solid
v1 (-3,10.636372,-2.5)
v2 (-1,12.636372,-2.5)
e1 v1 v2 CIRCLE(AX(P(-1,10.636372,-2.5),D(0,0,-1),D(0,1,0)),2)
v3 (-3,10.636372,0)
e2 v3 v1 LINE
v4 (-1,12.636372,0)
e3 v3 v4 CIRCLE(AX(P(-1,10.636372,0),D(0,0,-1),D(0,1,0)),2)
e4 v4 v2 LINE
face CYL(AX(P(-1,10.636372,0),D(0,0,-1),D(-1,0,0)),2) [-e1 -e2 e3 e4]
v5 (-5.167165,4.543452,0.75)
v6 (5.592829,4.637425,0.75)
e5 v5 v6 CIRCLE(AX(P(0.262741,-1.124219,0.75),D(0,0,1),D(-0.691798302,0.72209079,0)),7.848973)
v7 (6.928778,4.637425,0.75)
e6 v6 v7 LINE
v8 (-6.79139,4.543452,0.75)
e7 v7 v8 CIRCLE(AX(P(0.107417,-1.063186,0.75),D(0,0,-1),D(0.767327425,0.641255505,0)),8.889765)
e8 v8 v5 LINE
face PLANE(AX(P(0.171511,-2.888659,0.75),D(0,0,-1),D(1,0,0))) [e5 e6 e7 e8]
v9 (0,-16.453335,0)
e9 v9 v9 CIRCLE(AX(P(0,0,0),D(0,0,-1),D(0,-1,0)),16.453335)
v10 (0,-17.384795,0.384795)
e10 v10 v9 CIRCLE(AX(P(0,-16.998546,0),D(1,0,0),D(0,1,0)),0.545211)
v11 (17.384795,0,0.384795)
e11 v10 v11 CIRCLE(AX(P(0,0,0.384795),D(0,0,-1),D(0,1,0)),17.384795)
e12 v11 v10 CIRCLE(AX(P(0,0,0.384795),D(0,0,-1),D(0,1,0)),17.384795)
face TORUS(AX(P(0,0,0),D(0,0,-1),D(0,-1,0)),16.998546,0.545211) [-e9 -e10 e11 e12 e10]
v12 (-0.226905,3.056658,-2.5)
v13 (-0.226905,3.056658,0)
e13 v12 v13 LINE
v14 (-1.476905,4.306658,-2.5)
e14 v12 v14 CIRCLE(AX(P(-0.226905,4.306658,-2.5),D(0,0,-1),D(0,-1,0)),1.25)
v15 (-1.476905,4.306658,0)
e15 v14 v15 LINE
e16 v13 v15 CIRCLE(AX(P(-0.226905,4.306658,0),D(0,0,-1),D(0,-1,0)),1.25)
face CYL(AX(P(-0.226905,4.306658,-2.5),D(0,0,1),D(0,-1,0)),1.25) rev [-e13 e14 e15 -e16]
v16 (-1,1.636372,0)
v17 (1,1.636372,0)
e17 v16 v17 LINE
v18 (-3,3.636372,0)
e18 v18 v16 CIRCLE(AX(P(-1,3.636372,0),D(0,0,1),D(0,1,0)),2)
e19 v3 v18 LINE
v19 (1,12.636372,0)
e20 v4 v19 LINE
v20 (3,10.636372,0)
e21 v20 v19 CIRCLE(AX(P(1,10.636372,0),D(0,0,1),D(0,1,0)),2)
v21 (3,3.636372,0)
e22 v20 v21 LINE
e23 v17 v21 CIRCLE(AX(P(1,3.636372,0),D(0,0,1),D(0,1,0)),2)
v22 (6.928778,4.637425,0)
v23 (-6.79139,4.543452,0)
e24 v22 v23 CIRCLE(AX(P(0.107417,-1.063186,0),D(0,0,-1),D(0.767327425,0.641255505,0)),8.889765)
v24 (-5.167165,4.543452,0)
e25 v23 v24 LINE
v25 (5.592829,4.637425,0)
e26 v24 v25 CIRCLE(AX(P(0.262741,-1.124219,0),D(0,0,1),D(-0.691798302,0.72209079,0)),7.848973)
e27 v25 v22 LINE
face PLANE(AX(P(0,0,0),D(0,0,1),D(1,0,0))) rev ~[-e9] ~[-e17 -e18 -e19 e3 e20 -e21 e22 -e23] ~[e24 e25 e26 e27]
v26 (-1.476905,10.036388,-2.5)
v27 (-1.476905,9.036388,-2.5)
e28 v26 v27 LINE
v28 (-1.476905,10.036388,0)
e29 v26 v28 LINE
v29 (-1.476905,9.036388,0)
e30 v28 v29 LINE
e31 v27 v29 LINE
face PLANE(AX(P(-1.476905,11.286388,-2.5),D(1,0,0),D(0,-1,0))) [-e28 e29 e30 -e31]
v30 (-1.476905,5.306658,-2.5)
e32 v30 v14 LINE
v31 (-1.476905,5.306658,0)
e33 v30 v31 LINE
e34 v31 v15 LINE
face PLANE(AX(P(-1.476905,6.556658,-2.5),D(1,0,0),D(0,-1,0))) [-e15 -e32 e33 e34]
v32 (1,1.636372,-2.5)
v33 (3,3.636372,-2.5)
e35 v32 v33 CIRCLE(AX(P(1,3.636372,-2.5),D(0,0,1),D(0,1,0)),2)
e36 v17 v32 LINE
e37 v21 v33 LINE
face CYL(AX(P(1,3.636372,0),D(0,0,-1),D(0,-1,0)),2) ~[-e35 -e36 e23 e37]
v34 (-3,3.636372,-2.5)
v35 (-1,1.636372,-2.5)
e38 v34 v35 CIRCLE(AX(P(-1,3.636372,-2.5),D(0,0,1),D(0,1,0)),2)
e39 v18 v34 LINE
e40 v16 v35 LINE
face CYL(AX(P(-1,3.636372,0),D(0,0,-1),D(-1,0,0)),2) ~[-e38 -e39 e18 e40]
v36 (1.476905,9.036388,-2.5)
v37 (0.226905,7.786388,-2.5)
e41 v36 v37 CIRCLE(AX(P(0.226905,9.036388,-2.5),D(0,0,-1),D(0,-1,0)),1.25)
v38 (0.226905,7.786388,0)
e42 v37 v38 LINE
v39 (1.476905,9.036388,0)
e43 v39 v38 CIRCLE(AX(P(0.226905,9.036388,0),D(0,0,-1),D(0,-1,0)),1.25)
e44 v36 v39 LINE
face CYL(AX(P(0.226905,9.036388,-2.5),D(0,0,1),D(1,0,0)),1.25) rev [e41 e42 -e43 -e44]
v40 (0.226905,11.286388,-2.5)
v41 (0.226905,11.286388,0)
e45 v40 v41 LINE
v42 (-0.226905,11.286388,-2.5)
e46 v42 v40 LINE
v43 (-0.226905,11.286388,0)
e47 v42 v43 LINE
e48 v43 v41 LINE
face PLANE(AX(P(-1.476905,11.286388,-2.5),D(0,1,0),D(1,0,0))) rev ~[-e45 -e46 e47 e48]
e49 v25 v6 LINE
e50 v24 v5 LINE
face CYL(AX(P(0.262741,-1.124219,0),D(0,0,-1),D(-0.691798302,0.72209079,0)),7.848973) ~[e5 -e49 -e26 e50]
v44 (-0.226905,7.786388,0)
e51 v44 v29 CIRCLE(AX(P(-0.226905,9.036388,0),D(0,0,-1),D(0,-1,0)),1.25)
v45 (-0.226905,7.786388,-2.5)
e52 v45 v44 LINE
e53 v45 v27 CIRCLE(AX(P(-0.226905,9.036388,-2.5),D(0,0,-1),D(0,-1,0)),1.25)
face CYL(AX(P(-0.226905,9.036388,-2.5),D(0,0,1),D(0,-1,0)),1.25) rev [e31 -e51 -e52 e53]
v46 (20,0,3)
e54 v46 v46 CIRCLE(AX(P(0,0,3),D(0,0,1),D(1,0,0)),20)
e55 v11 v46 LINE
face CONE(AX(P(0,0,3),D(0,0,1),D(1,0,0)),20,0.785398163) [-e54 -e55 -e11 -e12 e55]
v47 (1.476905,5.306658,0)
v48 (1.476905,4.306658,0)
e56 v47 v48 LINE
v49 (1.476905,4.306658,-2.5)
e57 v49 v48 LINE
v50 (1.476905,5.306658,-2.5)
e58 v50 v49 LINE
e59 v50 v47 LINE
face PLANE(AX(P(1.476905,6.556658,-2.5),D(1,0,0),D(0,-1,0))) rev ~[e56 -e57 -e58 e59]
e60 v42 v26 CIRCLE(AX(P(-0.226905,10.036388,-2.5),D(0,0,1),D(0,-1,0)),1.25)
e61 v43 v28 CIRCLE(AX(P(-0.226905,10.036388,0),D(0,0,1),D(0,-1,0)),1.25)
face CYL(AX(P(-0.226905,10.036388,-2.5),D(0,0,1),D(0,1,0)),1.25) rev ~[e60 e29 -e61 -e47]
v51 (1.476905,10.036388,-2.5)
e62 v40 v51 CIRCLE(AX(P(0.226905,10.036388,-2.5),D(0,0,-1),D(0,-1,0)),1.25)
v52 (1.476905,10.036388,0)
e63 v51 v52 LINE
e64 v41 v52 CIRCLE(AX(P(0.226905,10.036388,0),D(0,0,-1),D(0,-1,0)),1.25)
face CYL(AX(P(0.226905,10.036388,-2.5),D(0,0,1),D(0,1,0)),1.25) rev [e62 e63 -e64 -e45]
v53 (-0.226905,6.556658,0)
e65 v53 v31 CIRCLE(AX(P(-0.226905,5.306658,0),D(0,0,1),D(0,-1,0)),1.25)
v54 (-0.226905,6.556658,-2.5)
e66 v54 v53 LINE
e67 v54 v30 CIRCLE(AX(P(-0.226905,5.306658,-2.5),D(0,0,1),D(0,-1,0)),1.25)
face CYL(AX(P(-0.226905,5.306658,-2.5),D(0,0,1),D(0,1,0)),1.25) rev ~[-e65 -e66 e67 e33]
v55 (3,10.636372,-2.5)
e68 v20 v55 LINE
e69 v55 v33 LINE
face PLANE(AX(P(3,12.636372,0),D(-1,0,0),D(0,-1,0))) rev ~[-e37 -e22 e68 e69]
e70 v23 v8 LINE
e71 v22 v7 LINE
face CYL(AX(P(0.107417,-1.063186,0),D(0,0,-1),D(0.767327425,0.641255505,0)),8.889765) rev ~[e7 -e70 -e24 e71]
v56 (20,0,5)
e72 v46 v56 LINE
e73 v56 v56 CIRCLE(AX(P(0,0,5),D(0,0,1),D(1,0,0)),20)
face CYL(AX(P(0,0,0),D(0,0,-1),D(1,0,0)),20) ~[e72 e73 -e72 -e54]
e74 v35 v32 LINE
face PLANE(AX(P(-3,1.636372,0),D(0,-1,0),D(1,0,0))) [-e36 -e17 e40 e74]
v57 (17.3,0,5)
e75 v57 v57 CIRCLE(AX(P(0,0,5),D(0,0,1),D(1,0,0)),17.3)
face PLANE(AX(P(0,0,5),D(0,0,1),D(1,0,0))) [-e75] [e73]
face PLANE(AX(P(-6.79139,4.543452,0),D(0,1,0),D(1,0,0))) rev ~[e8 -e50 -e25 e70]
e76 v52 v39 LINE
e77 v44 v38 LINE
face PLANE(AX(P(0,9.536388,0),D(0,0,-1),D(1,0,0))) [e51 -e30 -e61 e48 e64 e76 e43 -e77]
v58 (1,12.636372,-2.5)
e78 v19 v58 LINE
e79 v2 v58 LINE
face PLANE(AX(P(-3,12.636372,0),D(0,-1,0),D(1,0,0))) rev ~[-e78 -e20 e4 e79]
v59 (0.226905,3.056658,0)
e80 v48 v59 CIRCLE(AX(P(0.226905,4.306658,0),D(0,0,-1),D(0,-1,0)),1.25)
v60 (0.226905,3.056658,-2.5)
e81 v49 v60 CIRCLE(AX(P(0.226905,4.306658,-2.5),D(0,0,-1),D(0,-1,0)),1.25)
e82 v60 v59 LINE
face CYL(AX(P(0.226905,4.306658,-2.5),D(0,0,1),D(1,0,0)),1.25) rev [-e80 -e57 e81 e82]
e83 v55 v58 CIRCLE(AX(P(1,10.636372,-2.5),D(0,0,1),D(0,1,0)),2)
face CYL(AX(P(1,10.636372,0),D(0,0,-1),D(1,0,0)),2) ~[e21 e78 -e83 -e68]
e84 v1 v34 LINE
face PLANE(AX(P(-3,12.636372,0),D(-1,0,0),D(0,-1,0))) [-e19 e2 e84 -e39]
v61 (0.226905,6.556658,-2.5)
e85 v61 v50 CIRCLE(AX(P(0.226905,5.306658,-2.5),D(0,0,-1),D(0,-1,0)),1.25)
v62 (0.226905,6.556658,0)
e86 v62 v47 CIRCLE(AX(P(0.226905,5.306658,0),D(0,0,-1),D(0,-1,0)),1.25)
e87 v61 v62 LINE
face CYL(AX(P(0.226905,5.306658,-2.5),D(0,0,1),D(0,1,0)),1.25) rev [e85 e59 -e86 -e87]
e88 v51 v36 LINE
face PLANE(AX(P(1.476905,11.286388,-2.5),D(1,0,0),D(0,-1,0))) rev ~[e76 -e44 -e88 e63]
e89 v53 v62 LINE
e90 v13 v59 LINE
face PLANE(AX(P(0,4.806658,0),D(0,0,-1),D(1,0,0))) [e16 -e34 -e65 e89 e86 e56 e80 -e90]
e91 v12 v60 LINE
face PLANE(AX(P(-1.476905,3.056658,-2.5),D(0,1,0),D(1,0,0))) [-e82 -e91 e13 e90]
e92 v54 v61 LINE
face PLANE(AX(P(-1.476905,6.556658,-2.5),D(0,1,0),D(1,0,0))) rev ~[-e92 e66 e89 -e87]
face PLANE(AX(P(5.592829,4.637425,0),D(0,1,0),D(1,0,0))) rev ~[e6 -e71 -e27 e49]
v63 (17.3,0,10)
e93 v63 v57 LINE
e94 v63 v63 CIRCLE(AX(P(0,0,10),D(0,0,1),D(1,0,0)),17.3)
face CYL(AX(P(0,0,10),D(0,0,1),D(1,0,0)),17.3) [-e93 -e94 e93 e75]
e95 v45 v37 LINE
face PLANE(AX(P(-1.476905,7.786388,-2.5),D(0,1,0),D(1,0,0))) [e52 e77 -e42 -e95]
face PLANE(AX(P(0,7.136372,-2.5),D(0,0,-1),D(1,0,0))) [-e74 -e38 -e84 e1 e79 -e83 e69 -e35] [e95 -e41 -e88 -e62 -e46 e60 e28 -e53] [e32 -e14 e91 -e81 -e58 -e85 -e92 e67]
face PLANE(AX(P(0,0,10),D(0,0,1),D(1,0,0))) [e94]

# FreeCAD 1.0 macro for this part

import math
import FreeCAD as App
import Part
import Sketcher

V = App.Vector
Q = App.Units.Quantity


def edges_at(feature, points):
    """Names of the edges that pass closest to the given points."""
    edges = feature.Shape.Edges
    near = lambda p: min(range(len(edges)), key=lambda i: edges[i].distToShape(Part.Vertex(*p))[0])
    return sorted({f"Edge{near(p) + 1}" for p in points})


def add_polygon(sketch, points):
    """Adds a closed chain of lines whose ends are joined by coincident constraints."""
    first, n = sketch.GeometryCount, len(points)
    for a, b in zip(points, points[1:] + points[:1]):
        sketch.addGeometry(Part.LineSegment(App.Vector(*a, 0), App.Vector(*b, 0)), False)
    for i in range(n):
        sketch.addConstraint(Sketcher.Constraint("Coincident", first + i, 2, first + (i + 1) % n, 1))

doc = App.newDocument("Part")
body = doc.addObject("PartDesign::Body", "Body")

# Sketch on XY plane
sketch1 = doc.addObject("Sketcher::SketchObject", "Sketch")
body.addObject(sketch1)
sketch1.AttachmentSupport = (doc.XY_Plane, [""])
sketch1.MapMode = "FlatFace"
sketch1.addGeometry(Part.Circle(V(0, 0, 0), V(0, 0, 1), 20), False)
sketch1.addConstraint([
    Sketcher.Constraint("Coincident", 0, 3, -1, 1),
    Sketcher.Constraint("Diameter", 0, Q("40 mm")),
])
pad1 = doc.addObject("PartDesign::Pad", "Pad")
body.addObject(pad1)
pad1.Profile = sketch1
pad1.Length = 5

# Sketch on XY plane
sketch2 = doc.addObject("Sketcher::SketchObject", "Sketch001")
body.addObject(sketch2)
sketch2.AttachmentSupport = (doc.XY_Plane, [""])
sketch2.MapMode = "FlatFace"
sketch2.AttachmentOffset = App.Placement(V(0, 0, 5), App.Rotation())
sketch2.addGeometry(Part.Circle(V(0, 0, 0), V(0, 0, 1), 17), False)
sketch2.addConstraint([
    Sketcher.Constraint("Coincident", 0, 3, -1, 1),
    Sketcher.Constraint("Diameter", 0, Q("33.2 mm")),
])
pad2 = doc.addObject("PartDesign::Pad", "Pad001")
body.addObject(pad2)
pad2.Profile = sketch2
pad2.Length = 5

# Sketch on XY plane
sketch3 = doc.addObject("Sketcher::SketchObject", "Sketch002")
body.addObject(sketch3)
sketch3.AttachmentSupport = (doc.XY_Plane, [""])
sketch3.MapMode = "FlatFace"
add_polygon(sketch3, [(-3, 2), (-3, 13), (3, 13), (3, 2)])  # lines 0-3
sketch3.addConstraint([
    Sketcher.Constraint("Vertical", 0),
    Sketcher.Constraint("Horizontal", 1),
    Sketcher.Constraint("Vertical", 2),
    Sketcher.Constraint("Horizontal", 3),
    Sketcher.Constraint("DistanceX", 1, 1, 1, 2, Q("6 mm")),
    Sketcher.Constraint("DistanceY", 0, 1, 0, 2, Q("11 mm")),
    Sketcher.Constraint("DistanceX", 0, 2, -1, 1, Q("3 mm")),
    Sketcher.Constraint("DistanceY", -1, 1, 2, 2, Q("1.636372 mm")),
])
pad3 = doc.addObject("PartDesign::Pad", "Pad002")
body.addObject(pad3)
pad3.Profile = sketch3
pad3.Length = 2.5
pad3.Reversed = True
doc.recompute()

fillet = doc.addObject("PartDesign::Fillet", "Fillet")
body.addObject(fillet)
fillet.Base = (pad3, edges_at(pad3, [
    (-3, 12.636, -1.25),
    (3, 12.636, -1.25),
    (3, 1.636, -1.25),
    (-3, 1.636, -1.25),
]))
fillet.Radius = 2
doc.recompute()

chamfer = doc.addObject("PartDesign::Chamfer", "Chamfer")
body.addObject(chamfer)
chamfer.Base = (fillet, edges_at(fillet, [(-20, 0, 0)]))
chamfer.Size = 3

# Sketch on XY plane
sketch4 = doc.addObject("Sketcher::SketchObject", "Sketch003")
body.addObject(sketch4)
sketch4.AttachmentSupport = (doc.XY_Plane, [""])
sketch4.MapMode = "FlatFace"
sketch4.AttachmentOffset = App.Placement(V(0, 0, -2.5), App.Rotation())
add_polygon(sketch4, [(-1.5, 3.1), (-1.5, 6.6), (1.5, 6.6), (1.5, 3.1)])  # lines 0-3
add_polygon(sketch4, [(-1.5, 7.8), (-1.5, 11.3), (1.5, 11.3), (1.5, 7.8)])  # lines 4-7
sketch4.addConstraint([
    Sketcher.Constraint("Vertical", 0),
    Sketcher.Constraint("Horizontal", 1),
    Sketcher.Constraint("Vertical", 2),
    Sketcher.Constraint("Horizontal", 3),
    Sketcher.Constraint("Vertical", 4),
    Sketcher.Constraint("Horizontal", 5),
    Sketcher.Constraint("Vertical", 6),
    Sketcher.Constraint("Horizontal", 7),
    Sketcher.Constraint("Vertical", 3, 2, 4, 2),
    Sketcher.Constraint("Vertical", 2, 2, 5, 2),
    Sketcher.Constraint("Equal", 2, 4),
    Sketcher.Constraint("DistanceY", 0, 1, 0, 2, Q("3.5 mm")),
    Sketcher.Constraint("DistanceX", 1, 1, 1, 2, Q("2.95381 mm")),
    Sketcher.Constraint("DistanceY", -1, 1, 2, 2, Q("3.056658 mm")),
    Sketcher.Constraint("DistanceY", 0, 2, 4, 2, Q("4.72973 mm")),
    Sketcher.Constraint("DistanceX", 0, 2, -1, 1, Q("1.476905 mm")),
])
pocket1 = doc.addObject("PartDesign::Pocket", "Pocket")
body.addObject(pocket1)
pocket1.Profile = sketch4
pocket1.Length = 2.5
pocket1.Reversed = True
doc.recompute()

fillet2 = doc.addObject("PartDesign::Fillet", "Fillet001")
body.addObject(fillet2)
fillet2.Base = (pocket1, edges_at(pocket1, [
    (1.477, 3.057, -1.25),
    (-1.477, 3.057, -1.25),
    (1.477, 6.557, -1.25),
    (-1.477, 6.557, -1.25),
    (1.477, 7.786, -1.25),
    (-1.477, 7.786, -1.25),
    (-1.477, 11.286, -1.25),
    (1.477, 11.286, -1.25),
]))
fillet2.Radius = 1.25

# Sketch on XY plane
sketch5 = doc.addObject("Sketcher::SketchObject", "Sketch004")
body.addObject(sketch5)
sketch5.AttachmentSupport = (doc.XY_Plane, [""])
sketch5.MapMode = "FlatFace"
sketch5.addGeometry([
    Part.LineSegment(V(5.6, 4.6, 0), V(6.9, 4.6, 0)),
    Part.ArcOfCircle(Part.Circle(V(0.1, -1.1, 0), V(0, 0, 1), 8.9), math.radians(141), math.radians(400)),
    Part.LineSegment(V(-6.8, 4.5, 0), V(-5.2, 4.5, 0)),
    Part.ArcOfCircle(Part.Circle(V(0.3, -1.1, 0), V(0, 0, 1), 7.8), math.radians(134), math.radians(407)),
], False)
sketch5.addConstraint([
    Sketcher.Constraint("Coincident", 0, 2, 1, 2),
    Sketcher.Constraint("Coincident", 1, 1, 2, 1),
    Sketcher.Constraint("Coincident", 2, 2, 3, 1),
    Sketcher.Constraint("Coincident", 3, 2, 0, 1),
    Sketcher.Constraint("Horizontal", 0),
    Sketcher.Constraint("Horizontal", 2),
    Sketcher.Constraint("Radius", 1, Q("8.889765 mm")),
    Sketcher.Constraint("Radius", 3, Q("7.848973 mm")),
    Sketcher.Constraint("DistanceX", 0, 1, 0, 2, Q("1.335949 mm")),
    Sketcher.Constraint("DistanceX", 2, 1, 2, 2, Q("1.624225 mm")),
    Sketcher.Constraint("DistanceX", -1, 1, 3, 3, Q("0.262741 mm")),
    Sketcher.Constraint("DistanceY", 3, 3, -1, 1, Q("1.124219 mm")),
    Sketcher.Constraint("DistanceX", -1, 1, 0, 2, Q("6.928778 mm")),
    Sketcher.Constraint("DistanceX", 1, 1, -1, 1, Q("6.79139 mm")),
])
pocket2 = doc.addObject("PartDesign::Pocket", "Pocket001")
body.addObject(pocket2)
pocket2.Profile = sketch5
pocket2.Length = 0.75
pocket2.Reversed = True

# Sketch on YZ plane
sketch6 = doc.addObject("Sketcher::SketchObject", "Sketch005")
body.addObject(sketch6)
sketch6.AttachmentSupport = (doc.YZ_Plane, [""])
sketch6.MapMode = "FlatFace"
sketch6.addGeometry(Part.Circle(V(-17, 0, 0), V(0, 0, 1), 0.5), False)
sketch6.addConstraint([
    Sketcher.Constraint("PointOnObject", 0, 3, -1),
    Sketcher.Constraint("Diameter", 0, Q("1.090422 mm")),
    Sketcher.Constraint("DistanceX", 0, 3, -1, 1, Q("16.998546 mm")),
])
revolution = doc.addObject("PartDesign::Revolution", "Revolution")
body.addObject(revolution)
revolution.Profile = sketch6
revolution.ReferenceAxis = (sketch6, ["V_Axis"])
revolution.Angle = 360

# Sketch on XY plane
sketch7 = doc.addObject("Sketcher::SketchObject", "Sketch006")
body.addObject(sketch7)
sketch7.AttachmentSupport = (doc.XY_Plane, [""])
sketch7.MapMode = "FlatFace"
sketch7.AttachmentOffset = App.Placement(V(0, 0, 10), App.Rotation())
sketch7.addGeometry([
    Part.Circle(V(0, 0, 0), V(0, 0, 1), 17),
    Part.Circle(V(0, 0, 0), V(0, 0, 1), 17),
], False)
sketch7.addConstraint([
    Sketcher.Constraint("Coincident", 0, 3, -1, 1),
    Sketcher.Constraint("Coincident", 1, 3, -1, 1),
    Sketcher.Constraint("Diameter", 0, Q("34.6 mm")),
    Sketcher.Constraint("Diameter", 1, Q("33.2 mm")),
])
pad4 = doc.addObject("PartDesign::Pad", "Pad003")
body.addObject(pad4)
pad4.Profile = sketch7
pad4.Length = 5
pad4.Reversed = True

doc.recompute()
